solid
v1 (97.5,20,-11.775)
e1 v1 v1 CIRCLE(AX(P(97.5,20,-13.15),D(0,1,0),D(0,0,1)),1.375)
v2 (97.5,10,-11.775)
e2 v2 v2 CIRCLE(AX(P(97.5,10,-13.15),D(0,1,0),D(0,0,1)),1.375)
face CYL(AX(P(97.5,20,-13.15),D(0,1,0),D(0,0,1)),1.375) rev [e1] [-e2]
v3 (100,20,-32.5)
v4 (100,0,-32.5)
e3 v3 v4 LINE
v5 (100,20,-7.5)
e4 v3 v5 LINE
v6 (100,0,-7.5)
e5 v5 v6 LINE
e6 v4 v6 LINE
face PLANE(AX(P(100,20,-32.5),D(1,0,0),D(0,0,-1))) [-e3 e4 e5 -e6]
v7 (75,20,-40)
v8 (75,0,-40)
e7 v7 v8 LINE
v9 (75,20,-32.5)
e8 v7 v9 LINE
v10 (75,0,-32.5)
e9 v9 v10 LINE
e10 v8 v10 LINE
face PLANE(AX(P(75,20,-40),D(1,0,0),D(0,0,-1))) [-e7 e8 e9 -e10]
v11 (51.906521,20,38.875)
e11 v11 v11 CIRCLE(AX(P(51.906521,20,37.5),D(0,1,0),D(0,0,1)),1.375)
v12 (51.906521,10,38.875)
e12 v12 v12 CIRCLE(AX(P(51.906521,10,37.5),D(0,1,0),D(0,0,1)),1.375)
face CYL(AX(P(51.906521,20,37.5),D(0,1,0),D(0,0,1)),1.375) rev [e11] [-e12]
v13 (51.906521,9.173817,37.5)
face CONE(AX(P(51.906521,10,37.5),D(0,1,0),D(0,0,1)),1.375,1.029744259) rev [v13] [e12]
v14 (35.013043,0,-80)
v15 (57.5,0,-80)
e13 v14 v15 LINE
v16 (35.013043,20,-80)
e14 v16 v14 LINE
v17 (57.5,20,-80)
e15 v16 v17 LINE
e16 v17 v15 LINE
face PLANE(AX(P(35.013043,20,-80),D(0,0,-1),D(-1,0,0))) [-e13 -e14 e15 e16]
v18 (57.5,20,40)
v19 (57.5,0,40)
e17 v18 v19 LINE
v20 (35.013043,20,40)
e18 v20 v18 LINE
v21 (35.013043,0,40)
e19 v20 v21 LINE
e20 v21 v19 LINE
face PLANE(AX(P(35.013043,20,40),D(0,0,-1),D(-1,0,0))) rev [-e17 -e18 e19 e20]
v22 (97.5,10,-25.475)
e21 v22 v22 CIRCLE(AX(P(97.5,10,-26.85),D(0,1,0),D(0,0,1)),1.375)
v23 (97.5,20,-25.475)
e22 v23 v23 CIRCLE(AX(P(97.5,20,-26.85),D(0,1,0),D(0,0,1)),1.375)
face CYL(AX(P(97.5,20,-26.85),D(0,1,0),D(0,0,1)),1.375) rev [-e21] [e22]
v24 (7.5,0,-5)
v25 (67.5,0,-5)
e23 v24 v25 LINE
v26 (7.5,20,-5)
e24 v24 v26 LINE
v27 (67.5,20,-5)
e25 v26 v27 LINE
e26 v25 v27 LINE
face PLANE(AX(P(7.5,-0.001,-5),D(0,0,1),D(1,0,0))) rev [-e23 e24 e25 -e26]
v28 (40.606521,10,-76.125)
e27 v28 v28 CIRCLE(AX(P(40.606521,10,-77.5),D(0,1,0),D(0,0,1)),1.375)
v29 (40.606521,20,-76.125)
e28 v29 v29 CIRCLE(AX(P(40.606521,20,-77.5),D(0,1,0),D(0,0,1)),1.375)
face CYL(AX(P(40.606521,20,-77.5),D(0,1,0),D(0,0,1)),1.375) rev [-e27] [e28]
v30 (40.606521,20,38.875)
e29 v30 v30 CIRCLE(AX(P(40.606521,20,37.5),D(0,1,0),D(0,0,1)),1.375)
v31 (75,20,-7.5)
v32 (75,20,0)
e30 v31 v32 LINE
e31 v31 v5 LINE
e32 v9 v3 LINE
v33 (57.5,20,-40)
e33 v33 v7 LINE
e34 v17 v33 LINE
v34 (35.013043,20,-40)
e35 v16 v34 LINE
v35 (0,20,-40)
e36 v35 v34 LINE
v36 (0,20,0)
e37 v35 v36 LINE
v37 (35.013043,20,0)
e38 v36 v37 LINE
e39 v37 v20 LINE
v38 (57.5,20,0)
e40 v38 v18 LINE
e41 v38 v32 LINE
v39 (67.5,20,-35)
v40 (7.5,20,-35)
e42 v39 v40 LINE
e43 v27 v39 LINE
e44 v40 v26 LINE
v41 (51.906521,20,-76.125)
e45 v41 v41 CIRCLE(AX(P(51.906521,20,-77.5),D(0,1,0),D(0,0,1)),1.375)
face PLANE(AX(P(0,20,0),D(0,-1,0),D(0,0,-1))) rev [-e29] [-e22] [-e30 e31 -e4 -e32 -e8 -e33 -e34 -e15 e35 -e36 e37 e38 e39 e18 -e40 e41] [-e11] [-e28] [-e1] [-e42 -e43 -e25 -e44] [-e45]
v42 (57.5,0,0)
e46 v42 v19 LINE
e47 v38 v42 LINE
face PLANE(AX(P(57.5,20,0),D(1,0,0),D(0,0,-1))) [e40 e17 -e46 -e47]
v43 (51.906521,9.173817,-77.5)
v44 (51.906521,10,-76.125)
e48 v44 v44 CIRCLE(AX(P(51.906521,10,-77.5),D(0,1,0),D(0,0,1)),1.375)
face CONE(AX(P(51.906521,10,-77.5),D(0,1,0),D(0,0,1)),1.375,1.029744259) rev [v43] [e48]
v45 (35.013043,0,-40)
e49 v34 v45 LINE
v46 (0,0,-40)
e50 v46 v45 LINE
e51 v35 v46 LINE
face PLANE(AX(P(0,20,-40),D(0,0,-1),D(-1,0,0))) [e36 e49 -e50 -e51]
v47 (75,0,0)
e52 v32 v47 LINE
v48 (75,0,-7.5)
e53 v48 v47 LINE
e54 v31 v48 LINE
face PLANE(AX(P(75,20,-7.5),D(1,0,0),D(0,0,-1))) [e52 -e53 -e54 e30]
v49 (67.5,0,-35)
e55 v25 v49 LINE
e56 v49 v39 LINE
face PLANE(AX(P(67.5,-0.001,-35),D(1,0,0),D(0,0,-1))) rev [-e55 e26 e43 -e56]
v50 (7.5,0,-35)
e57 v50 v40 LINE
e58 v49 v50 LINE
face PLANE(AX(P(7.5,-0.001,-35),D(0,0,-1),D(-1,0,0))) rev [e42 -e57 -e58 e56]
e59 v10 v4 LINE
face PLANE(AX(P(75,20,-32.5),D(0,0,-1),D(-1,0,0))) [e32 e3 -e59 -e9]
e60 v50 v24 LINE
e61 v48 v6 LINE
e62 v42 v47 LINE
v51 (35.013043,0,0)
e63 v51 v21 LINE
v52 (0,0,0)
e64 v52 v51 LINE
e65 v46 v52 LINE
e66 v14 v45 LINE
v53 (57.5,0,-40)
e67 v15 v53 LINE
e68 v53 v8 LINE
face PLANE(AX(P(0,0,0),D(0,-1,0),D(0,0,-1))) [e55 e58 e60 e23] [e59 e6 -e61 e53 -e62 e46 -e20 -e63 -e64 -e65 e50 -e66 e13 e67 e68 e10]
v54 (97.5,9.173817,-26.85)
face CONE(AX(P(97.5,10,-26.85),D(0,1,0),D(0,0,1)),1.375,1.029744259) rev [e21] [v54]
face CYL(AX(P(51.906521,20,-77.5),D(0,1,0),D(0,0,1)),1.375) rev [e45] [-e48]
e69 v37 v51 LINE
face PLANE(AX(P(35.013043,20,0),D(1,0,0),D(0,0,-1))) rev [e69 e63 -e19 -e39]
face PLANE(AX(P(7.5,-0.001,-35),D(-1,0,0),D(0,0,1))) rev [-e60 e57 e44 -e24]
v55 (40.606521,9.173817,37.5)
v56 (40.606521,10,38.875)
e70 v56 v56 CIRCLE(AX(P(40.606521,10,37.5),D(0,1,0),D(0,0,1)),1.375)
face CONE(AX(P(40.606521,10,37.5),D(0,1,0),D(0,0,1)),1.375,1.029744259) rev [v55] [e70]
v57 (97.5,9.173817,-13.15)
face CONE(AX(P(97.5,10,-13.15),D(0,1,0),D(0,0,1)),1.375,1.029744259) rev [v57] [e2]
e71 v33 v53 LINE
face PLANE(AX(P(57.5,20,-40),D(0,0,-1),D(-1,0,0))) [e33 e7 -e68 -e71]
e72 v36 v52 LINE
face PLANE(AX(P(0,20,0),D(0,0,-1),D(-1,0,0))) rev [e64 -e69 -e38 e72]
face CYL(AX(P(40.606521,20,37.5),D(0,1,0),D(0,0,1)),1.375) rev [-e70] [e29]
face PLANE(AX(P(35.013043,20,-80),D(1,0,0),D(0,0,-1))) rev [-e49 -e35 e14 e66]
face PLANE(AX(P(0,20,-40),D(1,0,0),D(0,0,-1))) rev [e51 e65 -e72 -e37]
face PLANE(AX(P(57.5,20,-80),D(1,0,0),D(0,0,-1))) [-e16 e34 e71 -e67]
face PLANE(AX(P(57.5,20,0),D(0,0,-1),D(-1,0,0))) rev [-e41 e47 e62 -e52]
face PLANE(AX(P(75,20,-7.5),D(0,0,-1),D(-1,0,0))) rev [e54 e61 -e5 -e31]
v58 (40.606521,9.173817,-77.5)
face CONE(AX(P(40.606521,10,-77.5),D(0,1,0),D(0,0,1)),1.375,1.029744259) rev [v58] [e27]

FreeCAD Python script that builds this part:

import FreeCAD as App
import Part
import Sketcher

V = App.Vector
Q = App.Units.Quantity


def add_polygon(sketch, points):
    """Adds a closed chain of lines whose ends are joined by coincident constraints."""
    first, n = sketch.GeometryCount, len(points)
    for a, b in zip(points, points[1:] + points[:1]):
        sketch.addGeometry(Part.LineSegment(App.Vector(*a, 0), App.Vector(*b, 0)), False)
    for i in range(n):
        sketch.addConstraint(Sketcher.Constraint("Coincident", first + i, 2, first + (i + 1) % n, 1))

doc = App.newDocument("Part")
params = doc.addObject("Spreadsheet::Sheet", "Params")
for row, (alias, value) in enumerate([
    ("sketch1_width", "25 mm"),
    ("sketch1_height", "40 mm"),
    ("sketch1_width2", "17.5 mm"),
    ("pad1_length", "20 mm"),
    ("sketch2_width", "60 mm"),
    ("sketch2_height", "30 mm"),
    ("sketch3_diameter", "2.75 mm"),
    ("hole_diameter", "2.75 mm"),
    ("hole_depth", "10 mm"),
], start=1):
    params.set(f"A{row}", alias)
    params.set(f"B{row}", "=" + value)
    params.setAlias(f"B{row}", alias)

body = doc.addObject("PartDesign::Body", "Body")

sketch1 = body.newObject("Sketcher::SketchObject", "Sketch")
sketch1.AttachmentSupport = (doc.getObject("XZ_Plane"), [""])
sketch1.MapMode = "FlatFace"
add_polygon(sketch1, [(58, 40), (58, 0), (75, 0), (75, -8), (100, -8), (100, -32), (75, -32), (75, -40), (58, -40), (58, -80), (35, -80), (35, -40), (0, -40), (0, 0), (35, 0), (35, 40)])
sketch1.addConstraint([
    Sketcher.Constraint("Vertical", 0),
    Sketcher.Constraint("Horizontal", 1),
    Sketcher.Constraint("Vertical", 2),
    Sketcher.Constraint("Horizontal", 3),
    Sketcher.Constraint("Vertical", 4),
    Sketcher.Constraint("Horizontal", 5),
    Sketcher.Constraint("Vertical", 6),
    Sketcher.Constraint("Horizontal", 7),
    Sketcher.Constraint("Vertical", 8),
    Sketcher.Constraint("Horizontal", 9),
    Sketcher.Constraint("Vertical", 10),
    Sketcher.Constraint("Horizontal", 11),
    Sketcher.Constraint("Vertical", 12),
    Sketcher.Constraint("Horizontal", 13),
    Sketcher.Constraint("Vertical", 14),
    Sketcher.Constraint("Horizontal", 15),
    Sketcher.Constraint("Coincident", 12, 2, -1, 1),
    Sketcher.Constraint("Symmetric", 10, 2, 14, 2, -1),
    Sketcher.Constraint("Symmetric", 7, 2, 15, 2, -1),
    Sketcher.Constraint("PointOnObject", 0, 2, -1),
    Sketcher.Constraint("Vertical", 2, 2, 5, 2),
    Sketcher.Constraint("Equal", 5, 4),
    Sketcher.Constraint("Equal", 2, 6),
    Sketcher.Constraint("Equal", 0, 8),
    Sketcher.Constraint("DistanceX", 3, 1, 3, 2, Q("25 mm")),
    Sketcher.Constraint("DistanceY", 0, 2, 0, 1, Q("40 mm")),
    Sketcher.Constraint("DistanceX", 1, 1, 1, 2, Q("17.5 mm")),
    Sketcher.Constraint("DistanceX", -1, 1, 1, 2, Q("75 mm")),
    Sketcher.Constraint("DistanceX", 9, 2, 9, 1, Q("22.486957 mm")),
])
sketch1.setExpression("Constraints[40]", "Params.sketch1_width")
sketch1.setExpression("Constraints[41]", "Params.sketch1_height")
sketch1.setExpression("Constraints[42]", "Params.sketch1_width2")
pad1 = body.newObject("PartDesign::Pad", "Pad")
pad1.Profile = sketch1
pad1.setExpression("Length", "Params.pad1_length")
pad1.Reversed = True

sketch2 = body.newObject("Sketcher::SketchObject", "Sketch001")
sketch2.AttachmentSupport = (doc.getObject("XZ_Plane"), [""])
sketch2.MapMode = "FlatFace"
sketch2.AttachmentOffset = App.Placement(V(0, 0, -20), App.Rotation())
add_polygon(sketch2, [(8, -35), (8, -5), (68, -5), (68, -35)])
sketch2.addConstraint([
    Sketcher.Constraint("Vertical", 0),
    Sketcher.Constraint("Horizontal", 1),
    Sketcher.Constraint("Vertical", 2),
    Sketcher.Constraint("Horizontal", 3),
    Sketcher.Constraint("DistanceX", 1, 1, 1, 2, Q("60 mm")),
    Sketcher.Constraint("DistanceY", 0, 1, 0, 2, Q("30 mm")),
    Sketcher.Constraint("DistanceY", 0, 2, -1, 1, Q("5 mm")),
    Sketcher.Constraint("DistanceX", -1, 1, 0, 2, Q("7.5 mm")),
])
sketch2.setExpression("Constraints[8]", "Params.sketch2_width")
sketch2.setExpression("Constraints[9]", "Params.sketch2_height")
pocket1 = body.newObject("PartDesign::Pocket", "Pocket")
pocket1.Profile = sketch2
pocket1.Type = "UpToFirst"
pocket1.Reversed = True

sketch3 = body.newObject("Sketcher::SketchObject", "Sketch002")
sketch3.AttachmentSupport = (doc.getObject("XZ_Plane"), [""])
sketch3.MapMode = "FlatFace"
sketch3.AttachmentOffset = App.Placement(V(0, 0, -20), App.Rotation())
sketch3.addGeometry([
    Part.Circle(V(51.9, -77.5, 0), V(0, 0, 1), 1.4),
    Part.Circle(V(40.6, 37.5, 0), V(0, 0, 1), 1.4),
    Part.Circle(V(51.9, 37.5, 0), V(0, 0, 1), 1.4),
    Part.Circle(V(97.5, -13.2, 0), V(0, 0, 1), 1.4),
    Part.Circle(V(97.5, -26.9, 0), V(0, 0, 1), 1.4),
    Part.Circle(V(40.6, -77.5, 0), V(0, 0, 1), 1.4),
], False)
sketch3.addConstraint([
    Sketcher.Constraint("Equal", 0, 1),
    Sketcher.Constraint("Equal", 1, 2),
    Sketcher.Constraint("Equal", 2, 3),
    Sketcher.Constraint("Equal", 3, 4),
    Sketcher.Constraint("Equal", 4, 5),
    Sketcher.Constraint("Horizontal", 1, 3, 2, 3),
    Sketcher.Constraint("Horizontal", 0, 3, 5, 3),
    Sketcher.Constraint("Vertical", 0, 3, 2, 3),
    Sketcher.Constraint("Vertical", 3, 3, 4, 3),
    Sketcher.Constraint("Vertical", 1, 3, 5, 3),
    Sketcher.Constraint("Diameter", 0, Q("2.75 mm")),
    Sketcher.Constraint("DistanceY", 0, 3, 1, 3, Q("115 mm")),
    Sketcher.Constraint("DistanceY", 0, 3, -1, 1, Q("77.5 mm")),
    Sketcher.Constraint("DistanceX", -1, 1, 3, 3, Q("97.5 mm")),
    Sketcher.Constraint("DistanceX", 1, 3, 0, 3, Q("11.3 mm")),
    Sketcher.Constraint("DistanceY", 4, 3, 3, 3, Q("13.7 mm")),
    Sketcher.Constraint("DistanceY", 3, 3, -1, 1, Q("13.15 mm")),
    Sketcher.Constraint("DistanceX", -1, 1, 0, 3, Q("51.906521 mm")),
])
sketch3.setExpression("Constraints[10]", "Params.sketch3_diameter")
doc.recompute()
hole = body.newObject("PartDesign::Hole", "Hole")
hole.Profile = sketch3
hole.ThreadType = "None"
hole.setExpression("Diameter", "Params.hole_diameter")
hole.DepthType = "Dimension"
hole.setExpression("Depth", "Params.hole_depth")
hole.DrillPoint = "Angled"
hole.DrillPointAngle = 118
hole.Reversed = True

doc.recompute()
